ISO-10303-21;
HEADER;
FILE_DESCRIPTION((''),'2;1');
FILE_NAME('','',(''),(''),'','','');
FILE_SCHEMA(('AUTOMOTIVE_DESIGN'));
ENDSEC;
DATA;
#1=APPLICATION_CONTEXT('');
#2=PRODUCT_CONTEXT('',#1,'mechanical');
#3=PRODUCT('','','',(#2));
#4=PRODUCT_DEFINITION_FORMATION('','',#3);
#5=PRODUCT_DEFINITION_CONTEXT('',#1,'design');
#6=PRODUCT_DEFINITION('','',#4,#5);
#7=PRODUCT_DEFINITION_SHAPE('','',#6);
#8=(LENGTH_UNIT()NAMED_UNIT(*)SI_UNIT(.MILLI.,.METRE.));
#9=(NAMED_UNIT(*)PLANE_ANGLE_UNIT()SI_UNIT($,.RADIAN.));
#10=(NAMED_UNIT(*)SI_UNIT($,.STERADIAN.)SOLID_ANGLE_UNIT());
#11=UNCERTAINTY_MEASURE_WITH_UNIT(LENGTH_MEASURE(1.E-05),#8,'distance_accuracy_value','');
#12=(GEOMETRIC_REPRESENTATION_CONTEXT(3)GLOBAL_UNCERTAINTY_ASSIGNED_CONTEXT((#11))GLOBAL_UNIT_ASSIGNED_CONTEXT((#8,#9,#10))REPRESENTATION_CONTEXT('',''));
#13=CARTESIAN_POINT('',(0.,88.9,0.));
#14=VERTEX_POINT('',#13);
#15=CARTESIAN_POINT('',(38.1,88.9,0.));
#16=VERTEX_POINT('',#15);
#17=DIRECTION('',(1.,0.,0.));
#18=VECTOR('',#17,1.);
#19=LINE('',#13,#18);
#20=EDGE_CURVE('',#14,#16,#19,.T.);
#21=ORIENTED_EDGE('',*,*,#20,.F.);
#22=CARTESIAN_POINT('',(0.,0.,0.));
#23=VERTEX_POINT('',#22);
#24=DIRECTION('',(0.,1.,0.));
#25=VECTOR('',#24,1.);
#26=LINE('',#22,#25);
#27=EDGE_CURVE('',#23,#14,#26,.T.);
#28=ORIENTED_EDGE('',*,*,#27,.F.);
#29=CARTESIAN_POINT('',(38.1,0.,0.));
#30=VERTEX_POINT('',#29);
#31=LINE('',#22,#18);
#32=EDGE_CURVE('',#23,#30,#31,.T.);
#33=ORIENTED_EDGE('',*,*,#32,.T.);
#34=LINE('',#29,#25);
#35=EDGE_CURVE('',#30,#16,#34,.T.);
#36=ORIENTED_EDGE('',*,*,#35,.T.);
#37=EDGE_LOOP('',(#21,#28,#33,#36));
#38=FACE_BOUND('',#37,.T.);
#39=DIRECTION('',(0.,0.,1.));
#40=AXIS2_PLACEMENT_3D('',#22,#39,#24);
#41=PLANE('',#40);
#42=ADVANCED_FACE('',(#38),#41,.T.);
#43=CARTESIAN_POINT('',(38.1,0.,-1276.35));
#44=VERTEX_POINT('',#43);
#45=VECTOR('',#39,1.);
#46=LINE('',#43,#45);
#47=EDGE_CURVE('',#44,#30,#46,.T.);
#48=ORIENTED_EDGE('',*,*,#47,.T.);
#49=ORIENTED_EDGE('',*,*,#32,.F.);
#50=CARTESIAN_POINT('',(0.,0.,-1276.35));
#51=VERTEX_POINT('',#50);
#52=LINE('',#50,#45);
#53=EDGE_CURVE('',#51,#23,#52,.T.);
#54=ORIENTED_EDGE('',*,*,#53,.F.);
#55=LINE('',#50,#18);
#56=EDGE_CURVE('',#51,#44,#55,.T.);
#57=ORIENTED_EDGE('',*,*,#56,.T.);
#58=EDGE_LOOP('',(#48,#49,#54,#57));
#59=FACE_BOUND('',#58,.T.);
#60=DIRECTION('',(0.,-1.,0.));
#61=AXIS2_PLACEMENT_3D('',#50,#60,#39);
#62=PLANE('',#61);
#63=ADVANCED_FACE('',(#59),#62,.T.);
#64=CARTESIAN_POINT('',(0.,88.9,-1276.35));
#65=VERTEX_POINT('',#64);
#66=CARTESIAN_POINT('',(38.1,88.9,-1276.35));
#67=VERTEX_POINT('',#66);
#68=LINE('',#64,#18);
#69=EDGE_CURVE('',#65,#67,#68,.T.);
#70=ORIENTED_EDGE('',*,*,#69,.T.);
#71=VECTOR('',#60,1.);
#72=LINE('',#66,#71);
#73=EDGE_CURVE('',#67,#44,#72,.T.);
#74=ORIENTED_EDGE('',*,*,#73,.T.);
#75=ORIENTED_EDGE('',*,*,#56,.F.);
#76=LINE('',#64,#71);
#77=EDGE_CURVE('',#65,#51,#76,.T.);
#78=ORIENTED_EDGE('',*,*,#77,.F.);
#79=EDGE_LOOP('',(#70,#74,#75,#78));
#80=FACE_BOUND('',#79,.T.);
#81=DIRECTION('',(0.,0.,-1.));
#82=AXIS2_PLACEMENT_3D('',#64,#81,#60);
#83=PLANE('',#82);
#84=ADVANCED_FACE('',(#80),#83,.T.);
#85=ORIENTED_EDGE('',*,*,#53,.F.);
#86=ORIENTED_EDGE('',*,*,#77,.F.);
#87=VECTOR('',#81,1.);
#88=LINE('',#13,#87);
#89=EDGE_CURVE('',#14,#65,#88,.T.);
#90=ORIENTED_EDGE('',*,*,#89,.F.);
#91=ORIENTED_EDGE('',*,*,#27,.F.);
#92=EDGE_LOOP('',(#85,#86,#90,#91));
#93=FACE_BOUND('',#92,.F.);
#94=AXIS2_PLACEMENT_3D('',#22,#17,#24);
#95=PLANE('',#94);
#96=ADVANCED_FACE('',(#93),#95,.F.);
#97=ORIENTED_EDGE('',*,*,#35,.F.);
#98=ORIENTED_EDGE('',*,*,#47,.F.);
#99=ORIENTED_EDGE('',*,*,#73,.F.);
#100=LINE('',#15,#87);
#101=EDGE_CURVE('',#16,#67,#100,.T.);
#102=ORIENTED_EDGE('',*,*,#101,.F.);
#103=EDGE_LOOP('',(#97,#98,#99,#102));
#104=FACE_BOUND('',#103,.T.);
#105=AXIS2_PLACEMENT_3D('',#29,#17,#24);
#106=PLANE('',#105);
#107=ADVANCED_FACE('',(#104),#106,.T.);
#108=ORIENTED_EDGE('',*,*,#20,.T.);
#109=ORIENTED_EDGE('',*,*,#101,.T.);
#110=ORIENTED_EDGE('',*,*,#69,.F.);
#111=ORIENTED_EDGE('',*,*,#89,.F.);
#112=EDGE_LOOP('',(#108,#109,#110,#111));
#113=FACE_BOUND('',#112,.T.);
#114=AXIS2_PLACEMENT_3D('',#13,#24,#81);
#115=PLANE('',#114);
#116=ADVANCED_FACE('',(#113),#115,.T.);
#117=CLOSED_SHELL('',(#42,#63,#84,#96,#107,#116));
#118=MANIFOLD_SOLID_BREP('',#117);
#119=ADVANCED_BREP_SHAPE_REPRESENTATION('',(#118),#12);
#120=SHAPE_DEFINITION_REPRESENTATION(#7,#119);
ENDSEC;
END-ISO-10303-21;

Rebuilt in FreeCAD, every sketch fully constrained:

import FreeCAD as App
import Part
import Sketcher

V = App.Vector
Q = App.Units.Quantity

doc = App.newDocument("Part")
body = doc.addObject("PartDesign::Body", "Body")

sketch1 = doc.addObject("Sketcher::SketchObject", "Sketch")
body.addObject(sketch1)
sketch1.AttachmentSupport = (doc.YZ_Plane, [""])
sketch1.MapMode = "FlatFace"
sketch1.addGeometry([
    Part.LineSegment(V(88.9, 0, 0), V(0, 0, 0)),
    Part.LineSegment(V(0, 0, 0), V(0, -1276.35, 0)),
    Part.LineSegment(V(0, -1276.35, 0), V(88.9, -1276.35, 0)),
    Part.LineSegment(V(88.9, -1276.35, 0), V(88.9, 0, 0)),
], False)
sketch1.addConstraint([
    Sketcher.Constraint("Coincident", 0, 2, 1, 1),
    Sketcher.Constraint("Coincident", 1, 2, 2, 1),
    Sketcher.Constraint("Coincident", 2, 2, 3, 1),
    Sketcher.Constraint("Coincident", 3, 2, 0, 1),
    Sketcher.Constraint("Horizontal", 0),
    Sketcher.Constraint("Vertical", 1),
    Sketcher.Constraint("Horizontal", 2),
    Sketcher.Constraint("Vertical", 3),
    Sketcher.Constraint("Coincident", 0, 2, -1, 1),
    Sketcher.Constraint("DistanceX", 0, 2, 0, 1, Q("3.5 in")),
    Sketcher.Constraint("DistanceY", 1, 2, 1, 1, Q("50.25 in")),
])
pad1 = doc.addObject("PartDesign::Pad", "Pad")
body.addObject(pad1)
pad1.Profile = sketch1
pad1.Length = Q("1.5 in")

doc.recompute()
